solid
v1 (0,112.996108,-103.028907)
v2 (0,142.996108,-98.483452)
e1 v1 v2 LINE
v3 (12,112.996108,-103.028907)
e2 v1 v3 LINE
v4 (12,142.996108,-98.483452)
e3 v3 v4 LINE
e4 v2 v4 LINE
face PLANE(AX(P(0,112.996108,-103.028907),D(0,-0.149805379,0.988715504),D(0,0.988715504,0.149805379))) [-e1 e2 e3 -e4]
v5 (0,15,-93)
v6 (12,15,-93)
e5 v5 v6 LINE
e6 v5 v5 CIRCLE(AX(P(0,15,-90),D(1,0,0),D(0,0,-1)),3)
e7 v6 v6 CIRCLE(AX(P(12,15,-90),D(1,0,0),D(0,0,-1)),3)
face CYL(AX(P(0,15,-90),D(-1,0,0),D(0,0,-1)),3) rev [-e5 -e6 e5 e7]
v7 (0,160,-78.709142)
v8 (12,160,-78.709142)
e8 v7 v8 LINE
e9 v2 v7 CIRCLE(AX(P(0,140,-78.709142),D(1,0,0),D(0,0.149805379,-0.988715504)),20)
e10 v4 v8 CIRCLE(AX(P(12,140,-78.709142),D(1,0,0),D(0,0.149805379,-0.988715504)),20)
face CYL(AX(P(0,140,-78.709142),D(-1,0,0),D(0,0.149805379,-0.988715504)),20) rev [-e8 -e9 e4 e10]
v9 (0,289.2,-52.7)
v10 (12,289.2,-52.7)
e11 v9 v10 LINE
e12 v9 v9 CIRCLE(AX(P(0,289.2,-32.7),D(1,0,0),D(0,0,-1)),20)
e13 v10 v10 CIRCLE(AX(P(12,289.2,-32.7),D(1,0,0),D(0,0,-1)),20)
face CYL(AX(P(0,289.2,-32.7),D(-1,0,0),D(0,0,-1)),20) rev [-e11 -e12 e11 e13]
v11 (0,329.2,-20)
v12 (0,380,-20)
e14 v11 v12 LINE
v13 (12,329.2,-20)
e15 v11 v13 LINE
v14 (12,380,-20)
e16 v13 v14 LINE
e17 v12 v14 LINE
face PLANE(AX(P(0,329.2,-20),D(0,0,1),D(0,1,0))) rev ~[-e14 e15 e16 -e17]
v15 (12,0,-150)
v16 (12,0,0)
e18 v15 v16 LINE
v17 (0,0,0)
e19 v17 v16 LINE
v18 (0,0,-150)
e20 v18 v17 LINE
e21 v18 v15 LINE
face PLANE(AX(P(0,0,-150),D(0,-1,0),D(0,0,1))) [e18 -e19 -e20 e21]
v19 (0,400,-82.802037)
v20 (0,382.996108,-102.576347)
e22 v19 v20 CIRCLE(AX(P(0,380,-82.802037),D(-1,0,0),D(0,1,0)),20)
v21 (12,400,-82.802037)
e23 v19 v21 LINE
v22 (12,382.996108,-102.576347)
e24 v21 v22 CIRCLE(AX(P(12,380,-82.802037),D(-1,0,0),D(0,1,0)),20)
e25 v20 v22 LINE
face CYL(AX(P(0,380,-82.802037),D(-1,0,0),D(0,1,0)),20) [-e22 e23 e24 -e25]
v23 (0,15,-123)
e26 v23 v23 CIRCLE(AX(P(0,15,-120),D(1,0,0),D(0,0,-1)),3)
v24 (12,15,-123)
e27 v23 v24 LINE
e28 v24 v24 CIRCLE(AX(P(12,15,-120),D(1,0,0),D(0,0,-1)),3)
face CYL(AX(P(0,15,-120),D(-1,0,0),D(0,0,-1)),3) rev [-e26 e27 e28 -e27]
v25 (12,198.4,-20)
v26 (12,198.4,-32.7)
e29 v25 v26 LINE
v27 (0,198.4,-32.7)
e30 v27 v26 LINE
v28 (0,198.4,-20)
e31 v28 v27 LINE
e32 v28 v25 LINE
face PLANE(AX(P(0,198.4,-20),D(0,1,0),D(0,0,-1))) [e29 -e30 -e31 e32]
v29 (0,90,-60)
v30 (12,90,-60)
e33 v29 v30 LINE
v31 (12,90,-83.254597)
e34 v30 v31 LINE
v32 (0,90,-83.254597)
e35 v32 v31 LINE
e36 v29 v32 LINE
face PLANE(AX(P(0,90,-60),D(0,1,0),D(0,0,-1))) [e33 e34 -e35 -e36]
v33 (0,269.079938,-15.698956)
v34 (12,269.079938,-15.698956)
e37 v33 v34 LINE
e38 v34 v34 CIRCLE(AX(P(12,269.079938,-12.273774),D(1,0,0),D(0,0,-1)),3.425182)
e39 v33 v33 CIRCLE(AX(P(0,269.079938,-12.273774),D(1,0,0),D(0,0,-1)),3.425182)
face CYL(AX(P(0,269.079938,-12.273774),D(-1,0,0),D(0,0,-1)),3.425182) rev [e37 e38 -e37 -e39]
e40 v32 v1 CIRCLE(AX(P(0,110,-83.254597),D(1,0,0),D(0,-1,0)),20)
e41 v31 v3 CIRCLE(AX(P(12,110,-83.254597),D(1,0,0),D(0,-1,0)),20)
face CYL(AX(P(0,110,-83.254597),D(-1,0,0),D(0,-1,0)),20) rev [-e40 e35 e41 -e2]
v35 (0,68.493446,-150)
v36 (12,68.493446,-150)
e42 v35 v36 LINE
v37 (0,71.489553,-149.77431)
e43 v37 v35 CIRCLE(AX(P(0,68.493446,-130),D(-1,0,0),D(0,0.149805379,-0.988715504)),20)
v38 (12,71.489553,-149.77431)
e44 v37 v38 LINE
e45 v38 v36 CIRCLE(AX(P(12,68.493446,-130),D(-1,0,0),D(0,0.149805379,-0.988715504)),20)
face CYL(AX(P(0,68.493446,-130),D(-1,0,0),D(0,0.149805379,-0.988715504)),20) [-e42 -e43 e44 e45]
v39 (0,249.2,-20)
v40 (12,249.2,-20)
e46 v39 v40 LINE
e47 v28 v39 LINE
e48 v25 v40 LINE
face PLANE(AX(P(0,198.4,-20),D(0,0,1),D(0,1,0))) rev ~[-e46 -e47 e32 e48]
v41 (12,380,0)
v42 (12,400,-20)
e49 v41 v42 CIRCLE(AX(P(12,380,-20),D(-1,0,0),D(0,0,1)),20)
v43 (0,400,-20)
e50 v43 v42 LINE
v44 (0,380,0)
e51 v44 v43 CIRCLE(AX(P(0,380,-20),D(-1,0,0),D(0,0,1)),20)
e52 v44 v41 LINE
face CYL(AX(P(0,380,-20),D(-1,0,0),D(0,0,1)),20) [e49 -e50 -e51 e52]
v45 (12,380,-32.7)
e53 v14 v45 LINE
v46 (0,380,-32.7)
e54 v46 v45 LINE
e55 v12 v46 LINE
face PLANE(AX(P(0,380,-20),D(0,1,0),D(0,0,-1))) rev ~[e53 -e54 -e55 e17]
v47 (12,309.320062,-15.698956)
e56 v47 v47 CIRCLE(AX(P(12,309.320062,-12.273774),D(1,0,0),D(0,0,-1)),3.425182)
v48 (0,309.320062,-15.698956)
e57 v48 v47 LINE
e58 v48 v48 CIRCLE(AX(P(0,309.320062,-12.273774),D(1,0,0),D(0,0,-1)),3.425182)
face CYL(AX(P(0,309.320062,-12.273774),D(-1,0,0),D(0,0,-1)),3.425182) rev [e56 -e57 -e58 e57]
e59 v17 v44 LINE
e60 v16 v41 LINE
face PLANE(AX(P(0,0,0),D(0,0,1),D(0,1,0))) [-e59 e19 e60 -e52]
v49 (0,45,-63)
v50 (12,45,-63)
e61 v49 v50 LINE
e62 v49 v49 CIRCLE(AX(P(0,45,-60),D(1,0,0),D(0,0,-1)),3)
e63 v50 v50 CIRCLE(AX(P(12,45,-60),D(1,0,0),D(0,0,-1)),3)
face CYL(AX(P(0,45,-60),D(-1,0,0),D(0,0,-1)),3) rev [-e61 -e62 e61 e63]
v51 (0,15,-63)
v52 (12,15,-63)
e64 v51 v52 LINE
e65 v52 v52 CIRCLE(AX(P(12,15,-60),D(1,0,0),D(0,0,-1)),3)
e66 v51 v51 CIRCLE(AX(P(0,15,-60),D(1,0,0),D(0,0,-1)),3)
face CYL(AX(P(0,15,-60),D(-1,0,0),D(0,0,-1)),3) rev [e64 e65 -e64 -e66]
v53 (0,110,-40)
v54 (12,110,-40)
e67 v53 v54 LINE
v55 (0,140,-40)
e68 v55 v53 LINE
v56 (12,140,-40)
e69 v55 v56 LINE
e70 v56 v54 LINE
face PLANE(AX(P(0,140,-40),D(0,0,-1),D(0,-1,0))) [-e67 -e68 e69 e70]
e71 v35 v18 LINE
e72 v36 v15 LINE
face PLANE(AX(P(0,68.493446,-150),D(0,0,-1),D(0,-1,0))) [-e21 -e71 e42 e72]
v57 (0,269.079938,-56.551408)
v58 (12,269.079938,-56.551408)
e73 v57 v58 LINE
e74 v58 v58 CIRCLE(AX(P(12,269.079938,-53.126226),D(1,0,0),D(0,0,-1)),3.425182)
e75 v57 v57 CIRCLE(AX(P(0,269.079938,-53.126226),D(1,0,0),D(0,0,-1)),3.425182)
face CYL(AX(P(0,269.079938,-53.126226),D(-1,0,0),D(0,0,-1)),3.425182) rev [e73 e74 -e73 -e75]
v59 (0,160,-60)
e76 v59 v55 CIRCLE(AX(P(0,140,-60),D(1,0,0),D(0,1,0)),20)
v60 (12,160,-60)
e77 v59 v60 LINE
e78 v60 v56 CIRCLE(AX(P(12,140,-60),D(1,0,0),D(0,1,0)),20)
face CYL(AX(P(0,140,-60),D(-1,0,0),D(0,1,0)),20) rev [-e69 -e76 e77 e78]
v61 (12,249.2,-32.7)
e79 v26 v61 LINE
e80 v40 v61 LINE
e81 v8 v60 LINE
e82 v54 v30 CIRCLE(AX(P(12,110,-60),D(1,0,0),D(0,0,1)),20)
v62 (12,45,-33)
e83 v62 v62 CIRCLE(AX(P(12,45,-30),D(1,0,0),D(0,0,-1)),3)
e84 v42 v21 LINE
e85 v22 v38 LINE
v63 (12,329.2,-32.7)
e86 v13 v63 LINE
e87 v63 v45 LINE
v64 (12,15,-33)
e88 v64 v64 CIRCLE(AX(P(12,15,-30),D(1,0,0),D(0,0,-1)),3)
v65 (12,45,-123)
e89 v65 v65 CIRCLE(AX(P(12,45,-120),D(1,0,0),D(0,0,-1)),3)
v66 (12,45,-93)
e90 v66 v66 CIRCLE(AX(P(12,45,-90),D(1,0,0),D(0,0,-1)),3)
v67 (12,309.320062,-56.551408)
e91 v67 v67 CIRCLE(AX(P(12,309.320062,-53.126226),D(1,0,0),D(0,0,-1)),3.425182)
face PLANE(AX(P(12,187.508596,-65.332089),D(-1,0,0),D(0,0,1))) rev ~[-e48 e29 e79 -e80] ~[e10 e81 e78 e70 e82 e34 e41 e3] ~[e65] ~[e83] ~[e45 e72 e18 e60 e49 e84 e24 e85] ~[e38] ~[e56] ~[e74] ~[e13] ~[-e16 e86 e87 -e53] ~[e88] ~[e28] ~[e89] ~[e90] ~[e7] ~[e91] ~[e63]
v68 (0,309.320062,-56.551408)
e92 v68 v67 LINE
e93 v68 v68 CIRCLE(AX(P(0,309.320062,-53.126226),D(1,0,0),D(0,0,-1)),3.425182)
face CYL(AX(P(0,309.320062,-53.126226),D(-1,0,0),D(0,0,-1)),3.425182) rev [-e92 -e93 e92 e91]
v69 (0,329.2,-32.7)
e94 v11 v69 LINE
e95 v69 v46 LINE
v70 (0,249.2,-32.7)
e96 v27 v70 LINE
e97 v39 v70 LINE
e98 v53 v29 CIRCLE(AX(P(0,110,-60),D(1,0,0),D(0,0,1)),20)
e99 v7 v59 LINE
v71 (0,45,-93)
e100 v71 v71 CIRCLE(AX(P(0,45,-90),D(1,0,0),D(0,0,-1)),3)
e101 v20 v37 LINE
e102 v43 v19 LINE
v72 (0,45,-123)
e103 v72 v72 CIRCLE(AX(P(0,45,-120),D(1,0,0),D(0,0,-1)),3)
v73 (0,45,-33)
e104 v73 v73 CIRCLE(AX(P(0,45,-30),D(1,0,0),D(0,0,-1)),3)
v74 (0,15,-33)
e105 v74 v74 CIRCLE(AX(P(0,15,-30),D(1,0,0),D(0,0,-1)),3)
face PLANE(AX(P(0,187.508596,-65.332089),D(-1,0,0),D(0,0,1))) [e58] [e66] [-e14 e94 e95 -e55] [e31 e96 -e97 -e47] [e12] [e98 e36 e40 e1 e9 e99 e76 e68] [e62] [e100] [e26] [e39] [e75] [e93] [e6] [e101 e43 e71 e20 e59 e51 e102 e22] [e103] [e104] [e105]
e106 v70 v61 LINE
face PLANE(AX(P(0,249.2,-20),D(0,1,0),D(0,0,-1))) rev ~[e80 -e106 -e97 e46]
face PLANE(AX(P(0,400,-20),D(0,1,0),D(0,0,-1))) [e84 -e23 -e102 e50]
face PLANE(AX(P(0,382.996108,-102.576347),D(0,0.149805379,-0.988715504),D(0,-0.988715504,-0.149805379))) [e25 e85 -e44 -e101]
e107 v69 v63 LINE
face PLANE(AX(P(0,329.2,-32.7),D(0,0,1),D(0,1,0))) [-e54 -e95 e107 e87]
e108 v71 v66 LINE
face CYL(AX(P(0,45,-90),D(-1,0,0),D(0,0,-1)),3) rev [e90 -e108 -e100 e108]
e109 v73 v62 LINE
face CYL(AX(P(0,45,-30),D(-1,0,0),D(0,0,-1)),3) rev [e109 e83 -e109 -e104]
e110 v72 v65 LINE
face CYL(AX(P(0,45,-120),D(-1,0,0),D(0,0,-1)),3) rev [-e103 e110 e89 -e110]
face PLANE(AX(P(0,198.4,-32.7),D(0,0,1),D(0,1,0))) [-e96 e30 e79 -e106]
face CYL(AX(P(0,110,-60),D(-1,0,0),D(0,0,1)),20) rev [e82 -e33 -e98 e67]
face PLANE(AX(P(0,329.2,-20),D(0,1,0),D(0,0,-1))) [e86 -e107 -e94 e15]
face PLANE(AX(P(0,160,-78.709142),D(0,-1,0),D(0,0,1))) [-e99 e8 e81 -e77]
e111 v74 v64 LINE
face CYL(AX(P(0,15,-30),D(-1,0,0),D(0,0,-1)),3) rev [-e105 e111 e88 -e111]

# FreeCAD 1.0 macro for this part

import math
import FreeCAD as App
import Part
import Sketcher
from FreeCAD import Vector

doc = App.newDocument("Part")
body = doc.addObject("PartDesign::Body", "Body")

sketch1 = body.newObject("Sketcher::SketchObject", "Sketch")
sketch1.AttachmentSupport = (doc.getObject("YZ_Plane"), [""])
sketch1.MapMode = "FlatFace"
sketch1.addGeometry([
    Part.LineSegment(Vector(380, 0, 0), Vector(0, 0, 0)),
    Part.LineSegment(Vector(0, 0, 0), Vector(0, -150, 0)),
    Part.LineSegment(Vector(0, -150, 0), Vector(68.493446, -150, 0)),
    Part.ArcOfCircle(Part.Circle(Vector(68.493446, -130, 0), Vector(0, 0, 1), 20), math.radians(-90), math.radians(-81.384352)),
    Part.LineSegment(Vector(71.489553, -149.77431, 0), Vector(382.996108, -102.576347, 0)),
    Part.ArcOfCircle(Part.Circle(Vector(380, -82.802037, 0), Vector(0, 0, 1), 20), math.radians(-81.384352), math.radians(0)),
    Part.LineSegment(Vector(400, -82.802037, 0), Vector(400, -20, 0)),
    Part.ArcOfCircle(Part.Circle(Vector(380, -20, 0), Vector(0, 0, 1), 20), math.radians(0), math.radians(90)),
    Part.Circle(Vector(15, -120, 0), Vector(0, 0, 1), 3),
    Part.Circle(Vector(45, -120, 0), Vector(0, 0, 1), 3),
    Part.Circle(Vector(15, -90, 0), Vector(0, 0, 1), 3),
    Part.Circle(Vector(45, -90, 0), Vector(0, 0, 1), 3),
    Part.ArcOfCircle(Part.Circle(Vector(110, -60, 0), Vector(0, 0, 1), 20), math.radians(90), math.radians(180)),
    Part.LineSegment(Vector(110, -40, 0), Vector(140, -40, 0)),
    Part.ArcOfCircle(Part.Circle(Vector(140, -60, 0), Vector(0, 0, 1), 20), math.radians(0), math.radians(90)),
    Part.LineSegment(Vector(160, -60, 0), Vector(160, -78.709142, 0)),
    Part.ArcOfCircle(Part.Circle(Vector(140, -78.709142, 0), Vector(0, 0, 1), 20), math.radians(-81.384352), math.radians(0)),
    Part.LineSegment(Vector(142.996108, -98.483452, 0), Vector(112.996108, -103.028907, 0)),
    Part.ArcOfCircle(Part.Circle(Vector(110, -83.254597, 0), Vector(0, 0, 1), 20), math.radians(180), math.radians(278.615648)),
    Part.LineSegment(Vector(90, -83.254597, 0), Vector(90, -60, 0)),
    Part.Circle(Vector(15, -60, 0), Vector(0, 0, 1), 3),
    Part.Circle(Vector(45, -60, 0), Vector(0, 0, 1), 3),
    Part.Circle(Vector(15, -30, 0), Vector(0, 0, 1), 3),
    Part.Circle(Vector(45, -30, 0), Vector(0, 0, 1), 3),
    Part.Circle(Vector(269.079938, -53.126226, 0), Vector(0, 0, 1), 3.425182),
    Part.LineSegment(Vector(198.4, -20, 0), Vector(249.2, -20, 0)),
    Part.LineSegment(Vector(249.2, -20, 0), Vector(249.2, -32.7, 0)),
    Part.LineSegment(Vector(249.2, -32.7, 0), Vector(198.4, -32.7, 0)),
    Part.LineSegment(Vector(198.4, -32.7, 0), Vector(198.4, -20, 0)),
    Part.Circle(Vector(269.079938, -12.273774, 0), Vector(0, 0, 1), 3.425182),
    Part.Circle(Vector(309.320062, -53.126226, 0), Vector(0, 0, 1), 3.425182),
    Part.Circle(Vector(289.2, -32.7, 0), Vector(0, 0, 1), 20),
    Part.Circle(Vector(309.320062, -12.273774, 0), Vector(0, 0, 1), 3.425182),
    Part.LineSegment(Vector(329.2, -20, 0), Vector(380, -20, 0)),
    Part.LineSegment(Vector(380, -20, 0), Vector(380, -32.7, 0)),
    Part.LineSegment(Vector(380, -32.7, 0), Vector(329.2, -32.7, 0)),
    Part.LineSegment(Vector(329.2, -32.7, 0), Vector(329.2, -20, 0)),
], False)
sketch1.addConstraint([
    Sketcher.Constraint("Coincident", 0, 2, 1, 1),
    Sketcher.Constraint("Coincident", 1, 2, 2, 1),
    Sketcher.Constraint("Coincident", 2, 2, 3, 1),
    Sketcher.Constraint("Coincident", 3, 2, 4, 1),
    Sketcher.Constraint("Coincident", 4, 2, 5, 1),
    Sketcher.Constraint("Coincident", 5, 2, 6, 1),
    Sketcher.Constraint("Coincident", 6, 2, 7, 1),
    Sketcher.Constraint("Coincident", 7, 2, 0, 1),
    Sketcher.Constraint("Coincident", 12, 1, 13, 1),
    Sketcher.Constraint("Coincident", 13, 2, 14, 2),
    Sketcher.Constraint("Coincident", 14, 1, 15, 1),
    Sketcher.Constraint("Coincident", 15, 2, 16, 2),
    Sketcher.Constraint("Coincident", 16, 1, 17, 1),
    Sketcher.Constraint("Coincident", 17, 2, 18, 2),
    Sketcher.Constraint("Coincident", 18, 1, 19, 1),
    Sketcher.Constraint("Coincident", 19, 2, 12, 2),
    Sketcher.Constraint("Coincident", 25, 2, 26, 1),
    Sketcher.Constraint("Coincident", 26, 2, 27, 1),
    Sketcher.Constraint("Coincident", 27, 2, 28, 1),
    Sketcher.Constraint("Coincident", 28, 2, 25, 1),
    Sketcher.Constraint("Coincident", 33, 2, 34, 1),
    Sketcher.Constraint("Coincident", 34, 2, 35, 1),
    Sketcher.Constraint("Coincident", 35, 2, 36, 1),
    Sketcher.Constraint("Coincident", 36, 2, 33, 1),
    Sketcher.Constraint("Horizontal", 0),
    Sketcher.Constraint("Vertical", 1),
    Sketcher.Constraint("Horizontal", 2),
    Sketcher.Constraint("Vertical", 6),
    Sketcher.Constraint("Horizontal", 13),
    Sketcher.Constraint("Vertical", 15),
    Sketcher.Constraint("Vertical", 19),
    Sketcher.Constraint("Horizontal", 25),
    Sketcher.Constraint("Vertical", 26),
    Sketcher.Constraint("Horizontal", 27),
    Sketcher.Constraint("Vertical", 28),
    Sketcher.Constraint("Horizontal", 33),
    Sketcher.Constraint("Vertical", 34),
    Sketcher.Constraint("Horizontal", 35),
    Sketcher.Constraint("Vertical", 36),
    Sketcher.Constraint("Coincident", 0, 2, -1, 1),
    Sketcher.Constraint("Coincident", 33, 2, 7, 3),
    Sketcher.Constraint("Diameter", 8, 6.0),
    Sketcher.Constraint("Diameter", 9, 6.0),
    Sketcher.Constraint("Diameter", 10, 6.0),
    Sketcher.Constraint("Diameter", 11, 6.0),
    Sketcher.Constraint("Diameter", 20, 6.0),
    Sketcher.Constraint("Diameter", 21, 6.0),
    Sketcher.Constraint("Diameter", 22, 6.0),
    Sketcher.Constraint("Diameter", 23, 6.0),
    Sketcher.Constraint("Diameter", 31, 40.0),
    Sketcher.Constraint("Radius", 3, 20.0),
    Sketcher.Constraint("Radius", 5, 20.0),
    Sketcher.Constraint("Radius", 7, 20.0),
    Sketcher.Constraint("Radius", 12, 20.0),
    Sketcher.Constraint("Radius", 14, 20.0),
    Sketcher.Constraint("Radius", 16, 20.0),
    Sketcher.Constraint("Radius", 18, 20.0),
    Sketcher.Constraint("DistanceX", 0, 2, 0, 1, 380.0),
    Sketcher.Constraint("DistanceX", 13, 1, 13, 2, 30.0),
    Sketcher.Constraint("DistanceY", 1, 2, 1, 1, 150.0),
    Sketcher.Constraint("DistanceX", 25, 1, 25, 2, 50.8),
    Sketcher.Constraint("DistanceX", 33, 1, 33, 2, 50.8),
    Sketcher.Constraint("DistanceY", 26, 2, 26, 1, 12.7),
    Sketcher.Constraint("DistanceY", 34, 2, 34, 1, 12.7),
    Sketcher.Constraint("DistanceX", -1, 1, 5, 3, 380.0),
    Sketcher.Constraint("DistanceX", -1, 1, 8, 3, 15.0),
    Sketcher.Constraint("DistanceY", 8, 3, -1, 1, 120.0),
    Sketcher.Constraint("DistanceX", -1, 1, 9, 3, 45.0),
    Sketcher.Constraint("DistanceY", 9, 3, -1, 1, 120.0),
    Sketcher.Constraint("DistanceX", -1, 1, 10, 3, 15.0),
    Sketcher.Constraint("DistanceY", 10, 3, -1, 1, 90.0),
    Sketcher.Constraint("DistanceX", -1, 1, 11, 3, 45.0),
    Sketcher.Constraint("DistanceY", 11, 3, -1, 1, 90.0),
    Sketcher.Constraint("DistanceX", -1, 1, 12, 3, 110.0),
    Sketcher.Constraint("DistanceY", 12, 3, -1, 1, 60.0),
    Sketcher.Constraint("DistanceX", -1, 1, 14, 3, 140.0),
    Sketcher.Constraint("DistanceX", -1, 1, 20, 3, 15.0),
    Sketcher.Constraint("DistanceY", 20, 3, -1, 1, 60.0),
    Sketcher.Constraint("DistanceX", -1, 1, 21, 3, 45.0),
    Sketcher.Constraint("DistanceY", 21, 3, -1, 1, 60.0),
    Sketcher.Constraint("DistanceX", -1, 1, 22, 3, 15.0),
    Sketcher.Constraint("DistanceY", 22, 3, -1, 1, 30.0),
    Sketcher.Constraint("DistanceX", -1, 1, 23, 3, 45.0),
    Sketcher.Constraint("DistanceY", 23, 3, -1, 1, 30.0),
    Sketcher.Constraint("DistanceY", 6, 2, -1, 1, 20.0),
    Sketcher.Constraint("DistanceX", -1, 1, 12, 1, 110.0),
    Sketcher.Constraint("DistanceY", 14, 1, -1, 1, 60.0),
    Sketcher.Constraint("DistanceY", 19, 2, -1, 1, 60.0),
    Sketcher.Constraint("DistanceY", 25, 2, -1, 1, 20.0),
    Sketcher.Constraint("DistanceX", 17, 2, 16, 1, 30.0),
    Sketcher.Constraint("DistanceX", 25, 2, 31, 3, 40.0),
    Sketcher.Constraint("DistanceX", 31, 3, 35, 2, 40.0),
    Sketcher.Constraint("DistanceY", 31, 3, -1, 1, 32.7),
    Sketcher.Constraint("Diameter", 24, 6.850364),
    Sketcher.Constraint("Diameter", 29, 6.850364),
    Sketcher.Constraint("Diameter", 30, 6.850364),
    Sketcher.Constraint("Diameter", 32, 6.850364),
    Sketcher.Constraint("Distance", 17, 30.342399),
    Sketcher.Constraint("Distance", 4, 315.061868),
    Sketcher.Constraint("DistanceX", 2, 1, 2, 2, 68.493446),
    Sketcher.Constraint("DistanceY", 6, 1, 6, 2, 62.802037),
    Sketcher.Constraint("DistanceY", 15, 2, 15, 1, 18.709142),
    Sketcher.Constraint("DistanceY", 19, 1, 19, 2, 23.254597),
    Sketcher.Constraint("DistanceX", -1, 1, 24, 3, 269.079938),
    Sketcher.Constraint("DistanceX", -1, 1, 29, 3, 269.079938),
    Sketcher.Constraint("DistanceX", -1, 1, 30, 3, 309.320062),
    Sketcher.Constraint("DistanceX", -1, 1, 32, 3, 309.320062),
    Sketcher.Constraint("DistanceY", 3, 2, -1, 1, 149.77431),
    Sketcher.Constraint("DistanceY", 5, 3, 24, 3, 29.675811),
    Sketcher.Constraint("DistanceY", 24, 3, 29, 3, 40.852452),
    Sketcher.Constraint("DistanceY", 30, 3, 29, 3, 40.852452),
    Sketcher.Constraint("DistanceY", 30, 3, 32, 3, 40.852452),
    Sketcher.Constraint("DistanceY", 4, 2, 5, 3, 19.77431),
    Sketcher.Constraint("DistanceY", 4, 2, 5, 2, 19.77431),
    Sketcher.Constraint("DistanceY", 16, 1, 16, 3, 19.77431),
    Sketcher.Constraint("DistanceY", 16, 1, 15, 2, 19.77431),
])
pad1 = body.newObject("PartDesign::Pad", "Pad")
pad1.Profile = sketch1
pad1.Length = 12

doc.recompute()
